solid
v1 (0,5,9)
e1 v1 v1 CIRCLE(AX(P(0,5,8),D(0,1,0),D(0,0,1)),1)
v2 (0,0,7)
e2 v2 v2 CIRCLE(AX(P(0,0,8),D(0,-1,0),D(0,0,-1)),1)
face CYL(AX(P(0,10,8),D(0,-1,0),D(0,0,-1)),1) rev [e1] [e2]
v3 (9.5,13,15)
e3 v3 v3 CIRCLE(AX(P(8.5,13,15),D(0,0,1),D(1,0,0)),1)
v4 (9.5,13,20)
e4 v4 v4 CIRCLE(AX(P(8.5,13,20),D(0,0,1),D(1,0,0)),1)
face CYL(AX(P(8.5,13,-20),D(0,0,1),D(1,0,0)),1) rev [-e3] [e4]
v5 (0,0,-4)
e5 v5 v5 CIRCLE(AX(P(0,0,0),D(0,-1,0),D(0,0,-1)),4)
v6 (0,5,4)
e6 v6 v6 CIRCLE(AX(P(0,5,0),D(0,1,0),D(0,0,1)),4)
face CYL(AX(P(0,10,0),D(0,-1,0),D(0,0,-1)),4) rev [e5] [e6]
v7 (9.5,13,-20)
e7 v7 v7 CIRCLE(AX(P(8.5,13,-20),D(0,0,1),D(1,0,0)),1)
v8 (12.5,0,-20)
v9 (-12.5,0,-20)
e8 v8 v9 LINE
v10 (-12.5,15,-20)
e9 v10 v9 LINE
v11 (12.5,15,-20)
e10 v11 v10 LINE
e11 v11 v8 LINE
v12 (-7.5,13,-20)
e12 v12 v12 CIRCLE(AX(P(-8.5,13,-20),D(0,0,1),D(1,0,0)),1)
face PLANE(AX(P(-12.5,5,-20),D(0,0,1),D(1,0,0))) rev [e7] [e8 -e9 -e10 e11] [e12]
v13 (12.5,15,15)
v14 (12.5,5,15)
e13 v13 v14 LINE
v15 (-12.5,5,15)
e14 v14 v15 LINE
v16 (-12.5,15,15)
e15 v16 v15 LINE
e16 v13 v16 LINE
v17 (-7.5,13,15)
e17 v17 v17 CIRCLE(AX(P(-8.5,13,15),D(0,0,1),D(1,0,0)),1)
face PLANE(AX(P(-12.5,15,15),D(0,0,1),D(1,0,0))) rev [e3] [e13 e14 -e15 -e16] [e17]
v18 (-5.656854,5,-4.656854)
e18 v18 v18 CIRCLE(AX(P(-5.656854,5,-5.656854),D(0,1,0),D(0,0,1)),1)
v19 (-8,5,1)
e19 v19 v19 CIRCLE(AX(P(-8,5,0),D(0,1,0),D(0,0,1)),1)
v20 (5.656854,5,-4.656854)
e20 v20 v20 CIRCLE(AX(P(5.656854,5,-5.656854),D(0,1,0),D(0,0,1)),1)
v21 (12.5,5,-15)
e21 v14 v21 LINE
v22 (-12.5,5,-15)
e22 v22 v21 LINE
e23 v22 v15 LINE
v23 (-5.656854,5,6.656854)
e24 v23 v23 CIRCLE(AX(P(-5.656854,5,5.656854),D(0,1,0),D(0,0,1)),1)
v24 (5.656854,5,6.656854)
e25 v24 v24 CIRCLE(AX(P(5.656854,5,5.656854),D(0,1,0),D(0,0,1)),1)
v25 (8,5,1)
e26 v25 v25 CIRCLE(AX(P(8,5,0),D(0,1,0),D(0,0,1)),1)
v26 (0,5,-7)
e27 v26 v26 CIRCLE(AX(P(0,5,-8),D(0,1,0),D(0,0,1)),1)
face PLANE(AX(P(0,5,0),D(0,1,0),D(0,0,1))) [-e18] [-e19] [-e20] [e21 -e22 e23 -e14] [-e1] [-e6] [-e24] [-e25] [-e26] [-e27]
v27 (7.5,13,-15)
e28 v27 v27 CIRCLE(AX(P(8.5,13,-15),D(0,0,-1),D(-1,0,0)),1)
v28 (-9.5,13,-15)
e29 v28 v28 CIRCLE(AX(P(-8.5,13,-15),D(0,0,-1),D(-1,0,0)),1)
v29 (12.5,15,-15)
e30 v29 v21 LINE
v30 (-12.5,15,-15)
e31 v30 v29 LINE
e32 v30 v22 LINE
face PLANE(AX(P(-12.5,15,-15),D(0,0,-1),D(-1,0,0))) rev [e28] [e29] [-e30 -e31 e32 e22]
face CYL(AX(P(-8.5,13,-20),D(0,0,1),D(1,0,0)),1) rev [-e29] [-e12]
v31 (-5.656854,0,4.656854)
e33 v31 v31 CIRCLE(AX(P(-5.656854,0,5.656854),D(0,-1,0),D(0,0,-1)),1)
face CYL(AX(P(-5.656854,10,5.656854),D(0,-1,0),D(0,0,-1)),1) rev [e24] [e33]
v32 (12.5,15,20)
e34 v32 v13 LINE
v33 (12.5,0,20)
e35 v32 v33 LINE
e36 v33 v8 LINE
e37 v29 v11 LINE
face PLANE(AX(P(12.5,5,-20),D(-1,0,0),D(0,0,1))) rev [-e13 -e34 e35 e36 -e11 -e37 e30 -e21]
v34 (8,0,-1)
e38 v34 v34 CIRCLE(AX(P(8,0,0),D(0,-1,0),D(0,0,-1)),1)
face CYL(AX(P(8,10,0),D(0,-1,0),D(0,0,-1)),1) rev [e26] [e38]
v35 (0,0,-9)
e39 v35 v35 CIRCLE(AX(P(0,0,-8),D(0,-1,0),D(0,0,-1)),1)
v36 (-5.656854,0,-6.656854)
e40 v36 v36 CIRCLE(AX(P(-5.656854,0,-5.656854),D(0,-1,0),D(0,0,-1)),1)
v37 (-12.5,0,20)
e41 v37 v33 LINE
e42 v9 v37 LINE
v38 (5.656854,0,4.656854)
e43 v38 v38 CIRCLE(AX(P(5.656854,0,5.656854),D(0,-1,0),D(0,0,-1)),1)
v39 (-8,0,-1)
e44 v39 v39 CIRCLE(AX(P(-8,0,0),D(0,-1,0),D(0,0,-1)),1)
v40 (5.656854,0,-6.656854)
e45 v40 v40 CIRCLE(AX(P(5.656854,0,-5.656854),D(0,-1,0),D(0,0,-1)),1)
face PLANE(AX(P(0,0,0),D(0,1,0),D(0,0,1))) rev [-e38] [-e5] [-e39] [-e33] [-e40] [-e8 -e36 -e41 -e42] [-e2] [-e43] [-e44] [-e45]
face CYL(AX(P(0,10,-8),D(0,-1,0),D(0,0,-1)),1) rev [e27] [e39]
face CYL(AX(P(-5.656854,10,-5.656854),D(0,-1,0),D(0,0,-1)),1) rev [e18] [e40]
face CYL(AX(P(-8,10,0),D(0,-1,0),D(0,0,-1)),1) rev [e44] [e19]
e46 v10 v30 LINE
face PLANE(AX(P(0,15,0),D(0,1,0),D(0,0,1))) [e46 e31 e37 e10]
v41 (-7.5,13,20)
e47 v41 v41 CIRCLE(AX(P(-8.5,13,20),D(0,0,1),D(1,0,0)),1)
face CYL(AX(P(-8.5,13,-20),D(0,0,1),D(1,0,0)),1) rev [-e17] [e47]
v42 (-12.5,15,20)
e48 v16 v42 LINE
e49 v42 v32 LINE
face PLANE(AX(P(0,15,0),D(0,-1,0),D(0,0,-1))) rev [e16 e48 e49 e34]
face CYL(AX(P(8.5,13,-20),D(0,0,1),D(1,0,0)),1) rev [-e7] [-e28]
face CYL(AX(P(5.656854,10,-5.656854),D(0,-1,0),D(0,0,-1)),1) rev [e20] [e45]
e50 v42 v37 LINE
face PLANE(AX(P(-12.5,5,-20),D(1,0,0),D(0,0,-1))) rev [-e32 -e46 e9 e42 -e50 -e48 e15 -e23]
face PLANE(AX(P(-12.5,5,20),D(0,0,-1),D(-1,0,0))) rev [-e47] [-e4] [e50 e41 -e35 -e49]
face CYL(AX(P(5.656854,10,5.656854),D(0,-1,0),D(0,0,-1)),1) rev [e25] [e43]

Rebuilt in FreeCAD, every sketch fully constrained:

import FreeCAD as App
import Part
import Sketcher

V = App.Vector

doc = App.newDocument("Part")
body = doc.addObject("PartDesign::Body", "Body")

# Sketch on XZ plane
sketch1 = body.newObject("Sketcher::SketchObject", "Sketch")
sketch1.AttachmentSupport = (doc.getObject("XZ_Plane"), [""])
sketch1.MapMode = "FlatFace"
sketch1.addGeometry([
    Part.LineSegment(V(-12.5, -20, 0), V(-12.5, 20, 0)),
    Part.LineSegment(V(-12.5, 20, 0), V(12.5, 20, 0)),
    Part.LineSegment(V(12.5, 20, 0), V(12.5, -20, 0)),
    Part.LineSegment(V(12.5, -20, 0), V(-12.5, -20, 0)),
], False)
sketch1.addConstraint([
    Sketcher.Constraint("Coincident", 0, 2, 1, 1),
    Sketcher.Constraint("Coincident", 1, 2, 2, 1),
    Sketcher.Constraint("Coincident", 2, 2, 3, 1),
    Sketcher.Constraint("Coincident", 3, 2, 0, 1),
    Sketcher.Constraint("Vertical", 0),
    Sketcher.Constraint("Horizontal", 1),
    Sketcher.Constraint("Vertical", 2),
    Sketcher.Constraint("Horizontal", 3),
    Sketcher.Constraint("Symmetric", 0, 2, 2, 2, -1, 1),
    Sketcher.Constraint("DistanceX", 1, 1, 1, 2, 25.0),
    Sketcher.Constraint("DistanceY", 0, 1, 0, 2, 40.0),
])
pad1 = body.newObject("PartDesign::Pad", "Pad")
pad1.Profile = sketch1
pad1.Length = 5
pad1.Reversed = True

# Sketch on XZ plane
sketch2 = body.newObject("Sketcher::SketchObject", "Sketch001")
sketch2.AttachmentSupport = (doc.getObject("XZ_Plane"), [""])
sketch2.MapMode = "FlatFace"
sketch2.AttachmentOffset = App.Placement(V(0, 0, -5), App.Rotation())
sketch2.addGeometry([
    Part.LineSegment(V(-12.5, -20, 0), V(-12.5, -15, 0)),  # 0
    Part.LineSegment(V(-12.5, -15, 0), V(12.5, -15, 0)),  # 1
    Part.LineSegment(V(12.5, -15, 0), V(12.5, -20, 0)),  # 2
    Part.LineSegment(V(12.5, -20, 0), V(-12.5, -20, 0)),  # 3
    Part.LineSegment(V(-12.5, 15, 0), V(-12.5, 20, 0)),  # 4
    Part.LineSegment(V(-12.5, 20, 0), V(12.5, 20, 0)),  # 5
    Part.LineSegment(V(12.5, 20, 0), V(12.5, 15, 0)),  # 6
    Part.LineSegment(V(12.5, 15, 0), V(-12.5, 15, 0)),  # 7
], False)
sketch2.addConstraint([
    Sketcher.Constraint("Coincident", 0, 2, 1, 1),
    Sketcher.Constraint("Coincident", 1, 2, 2, 1),
    Sketcher.Constraint("Coincident", 2, 2, 3, 1),
    Sketcher.Constraint("Coincident", 3, 2, 0, 1),
    Sketcher.Constraint("Coincident", 4, 2, 5, 1),
    Sketcher.Constraint("Coincident", 5, 2, 6, 1),
    Sketcher.Constraint("Coincident", 6, 2, 7, 1),
    Sketcher.Constraint("Coincident", 7, 2, 4, 1),
    Sketcher.Constraint("Vertical", 0),
    Sketcher.Constraint("Horizontal", 1),
    Sketcher.Constraint("Vertical", 2),
    Sketcher.Constraint("Horizontal", 3),
    Sketcher.Constraint("Vertical", 4),
    Sketcher.Constraint("Horizontal", 5),
    Sketcher.Constraint("Vertical", 6),
    Sketcher.Constraint("Horizontal", 7),
    Sketcher.Constraint("Symmetric", 2, 2, 4, 2, -1, 1),
    Sketcher.Constraint("Symmetric", 0, 2, 6, 2, -1, 1),
    Sketcher.Constraint("Vertical", 3, 2, 4, 2),
    Sketcher.Constraint("DistanceX", 1, 1, 1, 2, 25.0),
    Sketcher.Constraint("DistanceY", 0, 1, 0, 2, 5.0),
    Sketcher.Constraint("DistanceY", 0, 2, -1, 1, 15.0),
])
pad2 = body.newObject("PartDesign::Pad", "Pad001")
pad2.Profile = sketch2
pad2.Length = 10
pad2.Reversed = True

# Sketch on XY plane
sketch3 = body.newObject("Sketcher::SketchObject", "Sketch002")
sketch3.AttachmentSupport = (doc.getObject("XY_Plane"), [""])
sketch3.MapMode = "FlatFace"
sketch3.AttachmentOffset = App.Placement(V(0, 0, 20), App.Rotation())
sketch3.addGeometry([
    Part.Circle(V(-8.5, 13, 0), V(0, 0, 1), 1),
    Part.Circle(V(8.5, 13, 0), V(0, 0, 1), 1),
], False)
sketch3.addConstraint([
    Sketcher.Constraint("Equal", 0, 1),
    Sketcher.Constraint("Symmetric", 0, 3, 1, 3, -2),
    Sketcher.Constraint("Diameter", 0, 2.0),
    Sketcher.Constraint("DistanceY", -1, 1, 0, 3, 13.0),
    Sketcher.Constraint("DistanceX", 0, 3, 1, 3, 17.0),
])
pocket1 = body.newObject("PartDesign::Pocket", "Pocket")
pocket1.Profile = sketch3
pocket1.Type = "ThroughAll"

# Sketch on XZ plane
sketch4 = body.newObject("Sketcher::SketchObject", "Sketch003")
sketch4.AttachmentSupport = (doc.getObject("XZ_Plane"), [""])
sketch4.MapMode = "FlatFace"
sketch4.addGeometry([
    Part.Circle(V(0, 0, 0), V(0, 0, 1), 4),  # 0
    Part.Circle(V(0, 8, 0), V(0, 0, 1), 1),  # 1
    Part.Circle(V(5.656854, 5.656854, 0), V(0, 0, 1), 1),  # 2
    Part.Circle(V(8, 0, 0), V(0, 0, 1), 1),  # 3
    Part.Circle(V(5.656854, -5.656854, 0), V(0, 0, 1), 1),  # 4
    Part.Circle(V(0, -8, 0), V(0, 0, 1), 1),  # 5
    Part.Circle(V(-5.656854, -5.656854, 0), V(0, 0, 1), 1),  # 6
    Part.Circle(V(-8, 0, 0), V(0, 0, 1), 1),  # 7
    Part.Circle(V(-5.656854, 5.656854, 0), V(0, 0, 1), 1),  # 8
], False)
sketch4.addConstraint([
    Sketcher.Constraint("Coincident", 0, 3, -1, 1),
    Sketcher.Constraint("Equal", 1, 2),
    Sketcher.Constraint("Equal", 2, 3),
    Sketcher.Constraint("Equal", 3, 4),
    Sketcher.Constraint("Equal", 4, 5),
    Sketcher.Constraint("Equal", 5, 6),
    Sketcher.Constraint("Equal", 6, 7),
    Sketcher.Constraint("Equal", 7, 8),
    Sketcher.Constraint("Symmetric", 1, 3, 5, 3, -1, 1),
    Sketcher.Constraint("Symmetric", 2, 3, 6, 3, -1, 1),
    Sketcher.Constraint("Symmetric", 3, 3, 7, 3, -1, 1),
    Sketcher.Constraint("Symmetric", 4, 3, 8, 3, -1, 1),
    Sketcher.Constraint("Symmetric", 4, 3, 6, 3, -2),
    Sketcher.Constraint("PointOnObject", 1, 3, -2),
    Sketcher.Constraint("PointOnObject", 3, 3, -1),
    Sketcher.Constraint("Diameter", 0, 8.0),
    Sketcher.Constraint("Diameter", 1, 2.0),
    Sketcher.Constraint("DistanceY", -1, 1, 1, 3, 8.0),
    Sketcher.Constraint("DistanceX", -1, 1, 3, 3, 8.0),
    Sketcher.Constraint("DistanceY", 4, 3, 2, 3, 11.313708),
    Sketcher.Constraint("DistanceX", 6, 3, 4, 3, 11.313708),
])
pocket2 = body.newObject("PartDesign::Pocket", "Pocket001")
pocket2.Profile = sketch4
pocket2.Length = 10

doc.recompute()
